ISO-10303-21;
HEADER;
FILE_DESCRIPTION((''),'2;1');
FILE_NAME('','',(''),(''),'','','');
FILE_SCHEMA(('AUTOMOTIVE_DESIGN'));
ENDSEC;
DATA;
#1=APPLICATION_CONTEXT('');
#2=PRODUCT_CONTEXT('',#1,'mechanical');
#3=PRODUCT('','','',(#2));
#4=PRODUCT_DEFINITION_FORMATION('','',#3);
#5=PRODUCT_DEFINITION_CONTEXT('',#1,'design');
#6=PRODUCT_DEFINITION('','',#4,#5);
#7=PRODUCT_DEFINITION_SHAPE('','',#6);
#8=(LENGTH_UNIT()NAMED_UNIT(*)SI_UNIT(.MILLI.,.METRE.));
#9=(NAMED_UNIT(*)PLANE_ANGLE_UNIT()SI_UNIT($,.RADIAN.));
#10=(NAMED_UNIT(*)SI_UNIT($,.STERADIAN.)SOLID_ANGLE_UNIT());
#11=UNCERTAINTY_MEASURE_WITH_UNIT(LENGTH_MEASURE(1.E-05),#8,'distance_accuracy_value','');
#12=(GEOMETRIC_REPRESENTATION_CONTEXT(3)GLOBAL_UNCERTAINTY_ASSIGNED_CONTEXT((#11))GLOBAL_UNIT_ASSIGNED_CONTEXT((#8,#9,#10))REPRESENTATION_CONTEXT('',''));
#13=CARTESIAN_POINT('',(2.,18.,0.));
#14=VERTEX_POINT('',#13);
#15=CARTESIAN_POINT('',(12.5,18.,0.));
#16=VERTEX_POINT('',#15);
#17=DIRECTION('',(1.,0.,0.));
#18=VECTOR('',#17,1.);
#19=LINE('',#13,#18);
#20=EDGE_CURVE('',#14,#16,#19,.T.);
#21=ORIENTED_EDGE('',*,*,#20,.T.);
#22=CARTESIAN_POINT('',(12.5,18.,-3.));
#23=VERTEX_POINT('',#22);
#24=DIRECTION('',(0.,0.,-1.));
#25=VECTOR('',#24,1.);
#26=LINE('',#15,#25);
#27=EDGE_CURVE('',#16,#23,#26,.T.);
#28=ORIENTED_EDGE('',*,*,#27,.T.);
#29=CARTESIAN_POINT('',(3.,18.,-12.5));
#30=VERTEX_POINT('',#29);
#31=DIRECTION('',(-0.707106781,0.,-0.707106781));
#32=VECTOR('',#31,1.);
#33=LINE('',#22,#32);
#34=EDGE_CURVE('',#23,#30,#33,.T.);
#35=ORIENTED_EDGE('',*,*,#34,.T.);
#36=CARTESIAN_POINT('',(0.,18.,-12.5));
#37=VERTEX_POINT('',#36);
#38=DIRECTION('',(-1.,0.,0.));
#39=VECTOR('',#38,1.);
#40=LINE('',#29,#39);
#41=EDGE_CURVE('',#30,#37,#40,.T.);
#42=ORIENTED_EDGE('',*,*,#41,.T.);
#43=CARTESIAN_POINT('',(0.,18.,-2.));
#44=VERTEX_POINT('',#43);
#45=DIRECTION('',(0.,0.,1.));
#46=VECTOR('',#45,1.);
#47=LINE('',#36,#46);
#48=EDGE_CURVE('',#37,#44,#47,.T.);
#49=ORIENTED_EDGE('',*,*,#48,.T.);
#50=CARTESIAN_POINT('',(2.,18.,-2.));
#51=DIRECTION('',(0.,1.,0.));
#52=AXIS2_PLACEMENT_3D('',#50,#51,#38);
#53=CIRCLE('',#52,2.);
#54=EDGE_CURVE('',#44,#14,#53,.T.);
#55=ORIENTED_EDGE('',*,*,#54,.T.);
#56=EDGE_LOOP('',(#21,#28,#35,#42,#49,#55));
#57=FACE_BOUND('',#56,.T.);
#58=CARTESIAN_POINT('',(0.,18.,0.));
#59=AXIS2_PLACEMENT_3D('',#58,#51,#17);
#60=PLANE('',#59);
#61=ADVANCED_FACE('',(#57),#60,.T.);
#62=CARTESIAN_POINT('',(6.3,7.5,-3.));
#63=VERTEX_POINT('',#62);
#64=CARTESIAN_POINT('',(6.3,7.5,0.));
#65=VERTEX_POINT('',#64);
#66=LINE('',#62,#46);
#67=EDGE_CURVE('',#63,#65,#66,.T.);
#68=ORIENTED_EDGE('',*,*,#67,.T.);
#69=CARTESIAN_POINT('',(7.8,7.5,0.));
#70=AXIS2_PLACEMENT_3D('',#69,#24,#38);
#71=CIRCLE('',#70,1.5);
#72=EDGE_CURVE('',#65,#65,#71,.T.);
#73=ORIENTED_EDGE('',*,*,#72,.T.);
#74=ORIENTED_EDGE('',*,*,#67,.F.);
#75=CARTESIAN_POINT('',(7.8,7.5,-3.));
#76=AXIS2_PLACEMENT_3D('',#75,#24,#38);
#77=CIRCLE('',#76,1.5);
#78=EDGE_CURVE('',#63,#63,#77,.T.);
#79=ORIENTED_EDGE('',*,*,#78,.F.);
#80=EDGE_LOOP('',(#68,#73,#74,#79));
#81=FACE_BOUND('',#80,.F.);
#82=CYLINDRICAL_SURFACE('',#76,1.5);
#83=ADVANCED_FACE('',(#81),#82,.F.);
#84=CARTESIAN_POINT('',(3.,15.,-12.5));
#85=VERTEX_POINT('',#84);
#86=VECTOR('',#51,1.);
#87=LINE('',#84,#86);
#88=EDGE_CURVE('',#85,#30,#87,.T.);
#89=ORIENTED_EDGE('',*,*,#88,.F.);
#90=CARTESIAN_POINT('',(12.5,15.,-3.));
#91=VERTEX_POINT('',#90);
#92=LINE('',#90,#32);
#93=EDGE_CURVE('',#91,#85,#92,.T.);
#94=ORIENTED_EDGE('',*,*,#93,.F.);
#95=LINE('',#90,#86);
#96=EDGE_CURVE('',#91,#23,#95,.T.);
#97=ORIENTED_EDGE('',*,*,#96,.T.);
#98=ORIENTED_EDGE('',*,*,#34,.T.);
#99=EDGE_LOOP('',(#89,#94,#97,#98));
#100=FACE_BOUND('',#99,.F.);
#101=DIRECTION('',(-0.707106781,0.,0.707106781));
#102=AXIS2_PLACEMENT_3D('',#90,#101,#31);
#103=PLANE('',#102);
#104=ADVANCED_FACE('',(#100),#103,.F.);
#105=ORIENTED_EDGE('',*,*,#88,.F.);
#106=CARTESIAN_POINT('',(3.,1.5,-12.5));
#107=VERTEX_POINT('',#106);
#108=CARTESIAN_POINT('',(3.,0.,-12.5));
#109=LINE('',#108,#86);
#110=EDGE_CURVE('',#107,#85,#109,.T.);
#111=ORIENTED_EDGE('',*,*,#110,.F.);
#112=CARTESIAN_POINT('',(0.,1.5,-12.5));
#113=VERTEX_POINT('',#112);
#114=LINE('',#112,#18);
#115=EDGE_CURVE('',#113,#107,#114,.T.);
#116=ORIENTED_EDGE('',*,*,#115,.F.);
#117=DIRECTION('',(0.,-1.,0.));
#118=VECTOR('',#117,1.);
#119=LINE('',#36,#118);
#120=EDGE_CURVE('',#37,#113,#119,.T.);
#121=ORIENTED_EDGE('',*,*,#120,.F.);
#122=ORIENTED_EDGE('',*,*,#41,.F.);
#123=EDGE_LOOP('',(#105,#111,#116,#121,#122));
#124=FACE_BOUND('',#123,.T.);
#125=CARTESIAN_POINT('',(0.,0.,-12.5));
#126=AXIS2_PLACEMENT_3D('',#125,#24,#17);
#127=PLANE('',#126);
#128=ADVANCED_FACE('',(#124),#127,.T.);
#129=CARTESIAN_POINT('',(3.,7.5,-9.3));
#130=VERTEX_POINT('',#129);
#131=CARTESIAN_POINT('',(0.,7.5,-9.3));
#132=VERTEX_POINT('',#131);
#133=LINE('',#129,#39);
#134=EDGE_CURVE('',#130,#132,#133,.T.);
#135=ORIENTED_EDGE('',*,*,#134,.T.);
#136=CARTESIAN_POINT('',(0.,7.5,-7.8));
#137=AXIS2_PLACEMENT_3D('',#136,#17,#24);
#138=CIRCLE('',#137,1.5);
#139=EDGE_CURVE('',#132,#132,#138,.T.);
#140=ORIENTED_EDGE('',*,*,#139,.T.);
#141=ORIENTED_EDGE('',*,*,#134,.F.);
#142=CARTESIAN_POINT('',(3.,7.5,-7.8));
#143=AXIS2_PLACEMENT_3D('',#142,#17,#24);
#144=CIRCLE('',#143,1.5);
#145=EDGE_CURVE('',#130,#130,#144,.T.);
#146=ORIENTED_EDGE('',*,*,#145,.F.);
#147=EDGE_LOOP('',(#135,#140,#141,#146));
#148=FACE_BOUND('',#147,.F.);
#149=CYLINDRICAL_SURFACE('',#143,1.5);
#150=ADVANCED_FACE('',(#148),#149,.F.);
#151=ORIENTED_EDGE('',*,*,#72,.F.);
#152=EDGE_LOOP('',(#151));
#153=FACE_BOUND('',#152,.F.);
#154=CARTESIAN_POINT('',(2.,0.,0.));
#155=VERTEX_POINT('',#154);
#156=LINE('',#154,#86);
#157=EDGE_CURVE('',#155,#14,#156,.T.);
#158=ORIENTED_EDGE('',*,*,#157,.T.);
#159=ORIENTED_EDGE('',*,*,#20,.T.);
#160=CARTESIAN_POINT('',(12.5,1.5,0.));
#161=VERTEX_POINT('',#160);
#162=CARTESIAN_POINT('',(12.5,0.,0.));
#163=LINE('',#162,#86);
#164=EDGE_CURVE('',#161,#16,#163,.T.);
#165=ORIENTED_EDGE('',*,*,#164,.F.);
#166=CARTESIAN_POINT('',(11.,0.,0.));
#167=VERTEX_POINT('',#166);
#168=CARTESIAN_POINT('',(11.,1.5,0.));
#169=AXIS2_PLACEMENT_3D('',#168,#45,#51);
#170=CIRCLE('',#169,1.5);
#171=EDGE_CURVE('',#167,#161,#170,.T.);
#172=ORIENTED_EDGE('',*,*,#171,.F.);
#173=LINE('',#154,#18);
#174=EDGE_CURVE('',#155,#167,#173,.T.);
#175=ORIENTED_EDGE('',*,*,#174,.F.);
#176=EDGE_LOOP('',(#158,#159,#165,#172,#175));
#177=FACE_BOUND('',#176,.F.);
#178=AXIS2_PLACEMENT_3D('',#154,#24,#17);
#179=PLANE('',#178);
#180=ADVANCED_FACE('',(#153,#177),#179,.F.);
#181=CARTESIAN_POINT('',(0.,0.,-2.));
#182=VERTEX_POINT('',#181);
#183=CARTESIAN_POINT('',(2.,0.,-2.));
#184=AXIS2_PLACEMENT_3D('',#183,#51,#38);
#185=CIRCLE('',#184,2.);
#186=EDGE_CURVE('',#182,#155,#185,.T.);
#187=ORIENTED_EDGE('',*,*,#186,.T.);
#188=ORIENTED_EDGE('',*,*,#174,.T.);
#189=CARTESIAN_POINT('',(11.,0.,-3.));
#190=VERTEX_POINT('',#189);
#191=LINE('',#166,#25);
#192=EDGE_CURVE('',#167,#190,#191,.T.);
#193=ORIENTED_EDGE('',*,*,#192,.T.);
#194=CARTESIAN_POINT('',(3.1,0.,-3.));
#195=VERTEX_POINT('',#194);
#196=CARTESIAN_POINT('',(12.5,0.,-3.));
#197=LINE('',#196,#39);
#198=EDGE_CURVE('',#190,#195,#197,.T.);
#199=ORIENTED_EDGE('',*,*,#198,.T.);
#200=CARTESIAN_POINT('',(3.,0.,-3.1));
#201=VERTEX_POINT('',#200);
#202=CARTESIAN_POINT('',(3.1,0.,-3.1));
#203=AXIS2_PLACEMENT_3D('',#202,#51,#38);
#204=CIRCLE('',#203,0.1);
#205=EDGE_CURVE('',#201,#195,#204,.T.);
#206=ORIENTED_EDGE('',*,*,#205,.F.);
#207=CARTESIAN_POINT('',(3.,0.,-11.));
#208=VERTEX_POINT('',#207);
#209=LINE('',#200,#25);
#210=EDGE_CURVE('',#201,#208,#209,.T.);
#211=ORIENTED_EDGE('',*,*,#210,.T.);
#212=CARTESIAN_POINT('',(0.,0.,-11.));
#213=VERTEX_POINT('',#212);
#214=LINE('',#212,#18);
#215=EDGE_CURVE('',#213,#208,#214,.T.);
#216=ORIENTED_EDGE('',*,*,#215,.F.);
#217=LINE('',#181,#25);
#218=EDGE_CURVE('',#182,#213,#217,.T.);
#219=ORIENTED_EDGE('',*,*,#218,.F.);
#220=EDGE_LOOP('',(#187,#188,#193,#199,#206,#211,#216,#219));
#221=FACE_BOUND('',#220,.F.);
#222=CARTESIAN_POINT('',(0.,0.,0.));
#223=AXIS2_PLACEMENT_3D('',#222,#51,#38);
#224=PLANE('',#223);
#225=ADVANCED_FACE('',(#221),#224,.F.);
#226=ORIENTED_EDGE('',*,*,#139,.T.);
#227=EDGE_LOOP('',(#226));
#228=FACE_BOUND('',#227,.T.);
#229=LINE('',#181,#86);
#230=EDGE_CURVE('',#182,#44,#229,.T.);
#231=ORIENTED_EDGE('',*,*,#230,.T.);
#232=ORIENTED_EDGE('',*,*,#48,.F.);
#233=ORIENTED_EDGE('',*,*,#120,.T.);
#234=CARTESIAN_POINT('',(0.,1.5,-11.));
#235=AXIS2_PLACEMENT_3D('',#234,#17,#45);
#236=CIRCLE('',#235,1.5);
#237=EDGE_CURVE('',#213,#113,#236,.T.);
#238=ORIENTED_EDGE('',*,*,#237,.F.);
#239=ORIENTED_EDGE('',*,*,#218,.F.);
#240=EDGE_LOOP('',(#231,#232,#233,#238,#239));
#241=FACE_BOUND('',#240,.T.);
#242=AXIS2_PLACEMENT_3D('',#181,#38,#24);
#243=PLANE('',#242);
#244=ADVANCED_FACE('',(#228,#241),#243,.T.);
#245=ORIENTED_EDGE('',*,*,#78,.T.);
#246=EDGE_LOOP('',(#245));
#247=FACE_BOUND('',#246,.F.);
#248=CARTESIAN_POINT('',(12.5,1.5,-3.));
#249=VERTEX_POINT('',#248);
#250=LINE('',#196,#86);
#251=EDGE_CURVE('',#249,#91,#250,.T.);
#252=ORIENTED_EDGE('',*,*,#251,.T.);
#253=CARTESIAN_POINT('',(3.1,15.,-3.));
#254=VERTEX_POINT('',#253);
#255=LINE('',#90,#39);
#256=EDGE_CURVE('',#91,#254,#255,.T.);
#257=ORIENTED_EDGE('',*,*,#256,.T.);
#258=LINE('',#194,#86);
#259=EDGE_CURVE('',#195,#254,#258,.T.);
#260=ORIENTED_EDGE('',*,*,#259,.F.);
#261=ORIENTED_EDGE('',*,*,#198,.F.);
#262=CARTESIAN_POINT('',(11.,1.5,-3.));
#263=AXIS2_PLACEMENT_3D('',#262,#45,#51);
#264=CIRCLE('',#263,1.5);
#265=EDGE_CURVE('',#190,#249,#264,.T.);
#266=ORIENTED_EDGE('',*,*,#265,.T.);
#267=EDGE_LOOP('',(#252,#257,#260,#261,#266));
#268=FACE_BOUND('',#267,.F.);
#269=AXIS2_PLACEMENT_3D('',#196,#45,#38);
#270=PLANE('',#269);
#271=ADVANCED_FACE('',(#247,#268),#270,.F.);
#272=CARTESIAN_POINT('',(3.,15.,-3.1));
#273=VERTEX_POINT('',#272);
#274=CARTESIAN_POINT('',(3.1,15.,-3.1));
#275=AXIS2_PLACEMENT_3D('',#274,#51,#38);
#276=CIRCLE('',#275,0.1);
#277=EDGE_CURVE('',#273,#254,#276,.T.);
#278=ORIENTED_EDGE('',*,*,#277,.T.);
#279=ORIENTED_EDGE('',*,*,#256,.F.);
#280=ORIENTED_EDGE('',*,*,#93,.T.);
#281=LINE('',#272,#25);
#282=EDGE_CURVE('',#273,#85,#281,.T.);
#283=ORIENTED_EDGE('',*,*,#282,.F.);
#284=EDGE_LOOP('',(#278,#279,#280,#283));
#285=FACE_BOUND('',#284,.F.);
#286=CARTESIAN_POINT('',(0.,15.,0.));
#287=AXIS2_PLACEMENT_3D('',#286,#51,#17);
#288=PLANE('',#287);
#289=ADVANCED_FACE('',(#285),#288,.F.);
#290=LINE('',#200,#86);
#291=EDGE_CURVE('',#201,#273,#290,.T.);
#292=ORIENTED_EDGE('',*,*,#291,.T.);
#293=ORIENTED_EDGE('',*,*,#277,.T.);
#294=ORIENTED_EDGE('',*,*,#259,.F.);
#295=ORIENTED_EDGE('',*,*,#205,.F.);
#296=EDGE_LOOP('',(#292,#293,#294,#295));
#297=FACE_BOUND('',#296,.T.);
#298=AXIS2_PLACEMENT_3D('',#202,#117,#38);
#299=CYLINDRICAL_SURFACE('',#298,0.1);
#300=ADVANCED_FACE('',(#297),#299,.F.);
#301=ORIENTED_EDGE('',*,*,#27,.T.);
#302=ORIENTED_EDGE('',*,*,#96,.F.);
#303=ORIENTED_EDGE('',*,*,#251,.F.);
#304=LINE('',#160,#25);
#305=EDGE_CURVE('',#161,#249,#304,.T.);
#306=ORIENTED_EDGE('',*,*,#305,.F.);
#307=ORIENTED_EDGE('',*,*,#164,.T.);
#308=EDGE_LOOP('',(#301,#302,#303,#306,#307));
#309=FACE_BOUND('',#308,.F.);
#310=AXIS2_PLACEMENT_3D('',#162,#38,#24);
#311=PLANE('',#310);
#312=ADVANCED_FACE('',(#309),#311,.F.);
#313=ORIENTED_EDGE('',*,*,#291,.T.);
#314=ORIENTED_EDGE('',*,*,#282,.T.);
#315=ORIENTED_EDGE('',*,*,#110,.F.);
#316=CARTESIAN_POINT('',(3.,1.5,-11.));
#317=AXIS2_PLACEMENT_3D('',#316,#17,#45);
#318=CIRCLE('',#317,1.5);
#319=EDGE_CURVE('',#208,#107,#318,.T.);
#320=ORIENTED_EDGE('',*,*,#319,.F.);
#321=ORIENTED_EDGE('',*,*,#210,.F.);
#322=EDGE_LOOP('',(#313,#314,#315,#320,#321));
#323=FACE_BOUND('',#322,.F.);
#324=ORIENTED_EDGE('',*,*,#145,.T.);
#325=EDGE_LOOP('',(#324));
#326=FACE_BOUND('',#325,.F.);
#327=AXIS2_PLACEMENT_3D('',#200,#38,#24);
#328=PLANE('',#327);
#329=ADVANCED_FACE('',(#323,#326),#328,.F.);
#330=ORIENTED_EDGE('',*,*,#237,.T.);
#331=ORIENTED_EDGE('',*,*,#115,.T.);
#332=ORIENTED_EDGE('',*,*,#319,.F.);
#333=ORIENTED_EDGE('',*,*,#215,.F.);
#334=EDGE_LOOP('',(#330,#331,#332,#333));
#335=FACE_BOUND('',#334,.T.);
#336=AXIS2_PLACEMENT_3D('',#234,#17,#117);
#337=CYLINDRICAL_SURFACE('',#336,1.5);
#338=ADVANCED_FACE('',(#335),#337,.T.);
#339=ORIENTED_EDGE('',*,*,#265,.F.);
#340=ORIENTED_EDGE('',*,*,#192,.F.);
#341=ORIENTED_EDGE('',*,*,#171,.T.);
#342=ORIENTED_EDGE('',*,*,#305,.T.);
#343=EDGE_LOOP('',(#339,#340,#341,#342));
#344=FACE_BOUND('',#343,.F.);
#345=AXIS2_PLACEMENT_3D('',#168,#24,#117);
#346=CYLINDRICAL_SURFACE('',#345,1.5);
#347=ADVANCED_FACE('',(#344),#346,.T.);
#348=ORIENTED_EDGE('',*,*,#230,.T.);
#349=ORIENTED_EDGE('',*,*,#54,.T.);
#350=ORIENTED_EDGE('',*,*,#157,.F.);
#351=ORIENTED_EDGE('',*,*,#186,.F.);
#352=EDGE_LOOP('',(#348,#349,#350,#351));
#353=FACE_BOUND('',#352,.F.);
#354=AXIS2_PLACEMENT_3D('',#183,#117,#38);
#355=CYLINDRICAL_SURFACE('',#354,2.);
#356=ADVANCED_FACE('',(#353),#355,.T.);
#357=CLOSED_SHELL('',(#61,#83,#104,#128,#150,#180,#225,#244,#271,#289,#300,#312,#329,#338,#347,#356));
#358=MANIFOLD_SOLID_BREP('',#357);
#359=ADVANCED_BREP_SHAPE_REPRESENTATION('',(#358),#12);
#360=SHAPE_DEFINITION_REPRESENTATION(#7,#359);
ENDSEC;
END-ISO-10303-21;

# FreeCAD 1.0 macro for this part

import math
import FreeCAD as App
import Part
import Sketcher
Q = App.Units.Quantity


def edges_at(feature, points):
    """Names of the edges that pass closest to the given points."""
    edges = feature.Shape.Edges
    near = lambda p: min(range(len(edges)), key=lambda i: edges[i].distToShape(Part.Vertex(*p))[0])
    return sorted({f"Edge{near(p) + 1}" for p in points})

doc = App.newDocument("Part")
params = doc.addObject("Spreadsheet::Sheet", "Params")
for row, (alias, value) in enumerate([
    ("sketch1_radius", "2 mm"),
    ("sketch1_radius2", "0.1 mm"),
    ("sketch1_width", "3 mm"),
    ("pad1_length", "15 mm"),
    ("sketch2_radius", "2 mm"),
    ("sketch2_width", "3 mm"),
    ("sketch2_width2", "10.5 mm"),
    ("pad2_length", "3 mm"),
    ("sketch3_diameter", "3 mm"),
    ("sketch4_diameter", "3 mm"),
    ("fillet_radius", "1.5 mm"),
], start=1):
    params.set(f"A{row}", alias)
    params.set(f"B{row}", "=" + value)
    params.setAlias(f"B{row}", alias)

body = doc.addObject("PartDesign::Body", "Body")

sketch1 = body.newObject("Sketcher::SketchObject", "Sketch")
sketch1.AttachmentSupport = (doc.getObject("XZ_Plane"), [""])
sketch1.MapMode = "FlatFace"
sketch1.addGeometry([
    Part.LineSegment(App.Vector(0, -12.5, 0), App.Vector(0, -2, 0)),
    Part.ArcOfCircle(Part.Circle(App.Vector(2, -2, 0), App.Vector(0, 0, 1), 2), math.radians(90), math.radians(180)),
    Part.LineSegment(App.Vector(2, 0, 0), App.Vector(12.5, 0, 0)),
    Part.LineSegment(App.Vector(12.5, 0, 0), App.Vector(12.5, -3, 0)),
    Part.LineSegment(App.Vector(12.5, -3, 0), App.Vector(3.1, -3, 0)),
    Part.ArcOfCircle(Part.Circle(App.Vector(3.1, -3.1, 0), App.Vector(0, 0, 1), 0.1), math.radians(90), math.radians(180)),
    Part.LineSegment(App.Vector(3, -3.1, 0), App.Vector(3, -12.5, 0)),
    Part.LineSegment(App.Vector(3, -12.5, 0), App.Vector(0, -12.5, 0)),
], False)
sketch1.addConstraint([
    Sketcher.Constraint("Tangent", 0, 2, 1, 2),
    Sketcher.Constraint("Tangent", 1, 1, 2, 1),
    Sketcher.Constraint("Coincident", 2, 2, 3, 1),
    Sketcher.Constraint("Coincident", 3, 2, 4, 1),
    Sketcher.Constraint("Tangent", 4, 2, 5, 1),
    Sketcher.Constraint("Tangent", 5, 2, 6, 1),
    Sketcher.Constraint("Coincident", 6, 2, 7, 1),
    Sketcher.Constraint("Coincident", 7, 2, 0, 1),
    Sketcher.Constraint("Vertical", 0),
    Sketcher.Constraint("Horizontal", 2),
    Sketcher.Constraint("Vertical", 3),
    Sketcher.Constraint("Horizontal", 4),
    Sketcher.Constraint("Vertical", 6),
    Sketcher.Constraint("Horizontal", 7),
    Sketcher.Constraint("PointOnObject", 0, 2, -2),
    Sketcher.Constraint("PointOnObject", 1, 1, -1),
    Sketcher.Constraint("Equal", 2, 0),
    Sketcher.Constraint("Equal", 7, 3),
    Sketcher.Constraint("Radius", 1, Q("2 mm")),
    Sketcher.Constraint("Radius", 5, Q("0.1 mm")),
    Sketcher.Constraint("DistanceX", 7, 2, 7, 1, Q("3 mm")),
    Sketcher.Constraint("DistanceX", -1, 1, 2, 2, Q("12.5 mm")),
])
sketch1.setExpression("Constraints[18]", "Params.sketch1_radius")
sketch1.setExpression("Constraints[19]", "Params.sketch1_radius2")
sketch1.setExpression("Constraints[20]", "Params.sketch1_width")
pad1 = body.newObject("PartDesign::Pad", "Pad")
pad1.Profile = sketch1
pad1.setExpression("Length", "Params.pad1_length")
pad1.Reversed = True

sketch2 = body.newObject("Sketcher::SketchObject", "Sketch001")
sketch2.AttachmentSupport = (doc.getObject("XZ_Plane"), [""])
sketch2.MapMode = "FlatFace"
sketch2.AttachmentOffset = App.Placement(App.Vector(0, 0, -15), App.Rotation())
sketch2.addGeometry([
    Part.LineSegment(App.Vector(3, -12.5, 0), App.Vector(0, -12.5, 0)),
    Part.LineSegment(App.Vector(0, -12.5, 0), App.Vector(0, -2, 0)),
    Part.ArcOfCircle(Part.Circle(App.Vector(2, -2, 0), App.Vector(0, 0, 1), 2), math.radians(90), math.radians(180)),
    Part.LineSegment(App.Vector(2, 0, 0), App.Vector(12.5, 0, 0)),
    Part.LineSegment(App.Vector(12.5, 0, 0), App.Vector(12.5, -3, 0)),
    Part.LineSegment(App.Vector(12.5, -3, 0), App.Vector(3, -12.5, 0)),
], False)
sketch2.addConstraint([
    Sketcher.Constraint("Coincident", 0, 2, 1, 1),
    Sketcher.Constraint("Tangent", 1, 2, 2, 2),
    Sketcher.Constraint("Tangent", 2, 1, 3, 1),
    Sketcher.Constraint("Coincident", 3, 2, 4, 1),
    Sketcher.Constraint("Coincident", 4, 2, 5, 1),
    Sketcher.Constraint("Coincident", 5, 2, 0, 1),
    Sketcher.Constraint("Horizontal", 0),
    Sketcher.Constraint("Vertical", 1),
    Sketcher.Constraint("Horizontal", 3),
    Sketcher.Constraint("Vertical", 4),
    Sketcher.Constraint("PointOnObject", 0, 2, -2),
    Sketcher.Constraint("PointOnObject", 2, 1, -1),
    Sketcher.Constraint("Equal", 3, 1),
    Sketcher.Constraint("Equal", 0, 4),
    Sketcher.Constraint("Radius", 2, Q("2 mm")),
    Sketcher.Constraint("DistanceX", 0, 2, 0, 1, Q("3 mm")),
    Sketcher.Constraint("DistanceX", 3, 1, 3, 2, Q("10.5 mm")),
])
sketch2.setExpression("Constraints[14]", "Params.sketch2_radius")
sketch2.setExpression("Constraints[15]", "Params.sketch2_width")
sketch2.setExpression("Constraints[16]", "Params.sketch2_width2")
pad2 = body.newObject("PartDesign::Pad", "Pad001")
pad2.Profile = sketch2
pad2.setExpression("Length", "Params.pad2_length")
pad2.Reversed = True

sketch3 = body.newObject("Sketcher::SketchObject", "Sketch002")
sketch3.AttachmentSupport = (doc.getObject("XY_Plane"), [""])
sketch3.MapMode = "FlatFace"
sketch3.AttachmentOffset = App.Placement(App.Vector(0, 0, -3), App.Rotation())
sketch3.addGeometry(Part.Circle(App.Vector(7.8, 7.5, 0), App.Vector(0, 0, 1), 1.5), False)
sketch3.addConstraint([
    Sketcher.Constraint("Diameter", 0, Q("3 mm")),
    Sketcher.Constraint("DistanceX", -1, 1, 0, 3, Q("7.8 mm")),
    Sketcher.Constraint("DistanceY", -1, 1, 0, 3, Q("7.5 mm")),
])
sketch3.setExpression("Constraints[0]", "Params.sketch3_diameter")
pocket1 = body.newObject("PartDesign::Pocket", "Pocket")
pocket1.Profile = sketch3
pocket1.Type = "ThroughAll"
pocket1.Reversed = True

sketch4 = body.newObject("Sketcher::SketchObject", "Sketch003")
sketch4.AttachmentSupport = (doc.getObject("YZ_Plane"), [""])
sketch4.MapMode = "FlatFace"
sketch4.AttachmentOffset = App.Placement(App.Vector(0, 0, 3), App.Rotation())
sketch4.addGeometry(Part.Circle(App.Vector(7.5, -7.8, 0), App.Vector(0, 0, 1), 1.5), False)
sketch4.addConstraint([
    Sketcher.Constraint("Diameter", 0, Q("3 mm")),
    Sketcher.Constraint("DistanceX", -1, 1, 0, 3, Q("7.5 mm")),
    Sketcher.Constraint("DistanceY", 0, 3, -1, 1, Q("7.8 mm")),
])
sketch4.setExpression("Constraints[0]", "Params.sketch4_diameter")
pocket2 = body.newObject("PartDesign::Pocket", "Pocket001")
pocket2.Profile = sketch4
pocket2.Type = "ThroughAll"
doc.recompute()

fillet = body.newObject("PartDesign::Fillet", "Fillet")
fillet.Base = (pocket2, edges_at(pocket2, [(1.5, 0, -12.5), (12.5, 0, -1.5)]))
fillet.setExpression("Radius", "Params.fillet_radius")

doc.recompute()
